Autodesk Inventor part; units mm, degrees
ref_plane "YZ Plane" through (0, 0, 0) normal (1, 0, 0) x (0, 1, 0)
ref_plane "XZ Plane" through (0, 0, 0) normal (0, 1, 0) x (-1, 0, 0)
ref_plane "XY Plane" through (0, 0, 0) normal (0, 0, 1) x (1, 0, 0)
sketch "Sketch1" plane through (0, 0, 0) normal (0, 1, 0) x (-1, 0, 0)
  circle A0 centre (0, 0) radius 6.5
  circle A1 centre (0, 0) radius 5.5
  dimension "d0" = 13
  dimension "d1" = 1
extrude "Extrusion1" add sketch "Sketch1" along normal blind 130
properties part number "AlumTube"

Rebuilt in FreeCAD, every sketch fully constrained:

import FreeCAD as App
import Part
import Sketcher

V = App.Vector
Q = App.Units.Quantity

doc = App.newDocument("Part")
body = doc.addObject("PartDesign::Body", "Body")

sketch1 = doc.addObject("Sketcher::SketchObject", "Sketch")
body.addObject(sketch1)
sketch1.AttachmentSupport = (doc.XZ_Plane, [""])
sketch1.MapMode = "FlatFace"
sketch1.addGeometry(Part.Circle(V(0, 0, 0), V(0, 0, 1), 6), False)
sketch1.addGeometry(Part.Circle(V(0, 0, 0), V(0, 0, 1), 6), False)
sketch1.addConstraint(Sketcher.Constraint("Coincident", 0, 3, -1, 1))
sketch1.addConstraint(Sketcher.Constraint("Coincident", 1, 3, -1, 1))
sketch1.addConstraint(Sketcher.Constraint("Diameter", 0, Q("13 mm")))
sketch1.addConstraint(Sketcher.Constraint("Diameter", 1, Q("11 mm")))
pad1 = doc.addObject("PartDesign::Pad", "Pad")
body.addObject(pad1)
pad1.Profile = sketch1
pad1.Length = 130
pad1.Reversed = True

doc.recompute()
